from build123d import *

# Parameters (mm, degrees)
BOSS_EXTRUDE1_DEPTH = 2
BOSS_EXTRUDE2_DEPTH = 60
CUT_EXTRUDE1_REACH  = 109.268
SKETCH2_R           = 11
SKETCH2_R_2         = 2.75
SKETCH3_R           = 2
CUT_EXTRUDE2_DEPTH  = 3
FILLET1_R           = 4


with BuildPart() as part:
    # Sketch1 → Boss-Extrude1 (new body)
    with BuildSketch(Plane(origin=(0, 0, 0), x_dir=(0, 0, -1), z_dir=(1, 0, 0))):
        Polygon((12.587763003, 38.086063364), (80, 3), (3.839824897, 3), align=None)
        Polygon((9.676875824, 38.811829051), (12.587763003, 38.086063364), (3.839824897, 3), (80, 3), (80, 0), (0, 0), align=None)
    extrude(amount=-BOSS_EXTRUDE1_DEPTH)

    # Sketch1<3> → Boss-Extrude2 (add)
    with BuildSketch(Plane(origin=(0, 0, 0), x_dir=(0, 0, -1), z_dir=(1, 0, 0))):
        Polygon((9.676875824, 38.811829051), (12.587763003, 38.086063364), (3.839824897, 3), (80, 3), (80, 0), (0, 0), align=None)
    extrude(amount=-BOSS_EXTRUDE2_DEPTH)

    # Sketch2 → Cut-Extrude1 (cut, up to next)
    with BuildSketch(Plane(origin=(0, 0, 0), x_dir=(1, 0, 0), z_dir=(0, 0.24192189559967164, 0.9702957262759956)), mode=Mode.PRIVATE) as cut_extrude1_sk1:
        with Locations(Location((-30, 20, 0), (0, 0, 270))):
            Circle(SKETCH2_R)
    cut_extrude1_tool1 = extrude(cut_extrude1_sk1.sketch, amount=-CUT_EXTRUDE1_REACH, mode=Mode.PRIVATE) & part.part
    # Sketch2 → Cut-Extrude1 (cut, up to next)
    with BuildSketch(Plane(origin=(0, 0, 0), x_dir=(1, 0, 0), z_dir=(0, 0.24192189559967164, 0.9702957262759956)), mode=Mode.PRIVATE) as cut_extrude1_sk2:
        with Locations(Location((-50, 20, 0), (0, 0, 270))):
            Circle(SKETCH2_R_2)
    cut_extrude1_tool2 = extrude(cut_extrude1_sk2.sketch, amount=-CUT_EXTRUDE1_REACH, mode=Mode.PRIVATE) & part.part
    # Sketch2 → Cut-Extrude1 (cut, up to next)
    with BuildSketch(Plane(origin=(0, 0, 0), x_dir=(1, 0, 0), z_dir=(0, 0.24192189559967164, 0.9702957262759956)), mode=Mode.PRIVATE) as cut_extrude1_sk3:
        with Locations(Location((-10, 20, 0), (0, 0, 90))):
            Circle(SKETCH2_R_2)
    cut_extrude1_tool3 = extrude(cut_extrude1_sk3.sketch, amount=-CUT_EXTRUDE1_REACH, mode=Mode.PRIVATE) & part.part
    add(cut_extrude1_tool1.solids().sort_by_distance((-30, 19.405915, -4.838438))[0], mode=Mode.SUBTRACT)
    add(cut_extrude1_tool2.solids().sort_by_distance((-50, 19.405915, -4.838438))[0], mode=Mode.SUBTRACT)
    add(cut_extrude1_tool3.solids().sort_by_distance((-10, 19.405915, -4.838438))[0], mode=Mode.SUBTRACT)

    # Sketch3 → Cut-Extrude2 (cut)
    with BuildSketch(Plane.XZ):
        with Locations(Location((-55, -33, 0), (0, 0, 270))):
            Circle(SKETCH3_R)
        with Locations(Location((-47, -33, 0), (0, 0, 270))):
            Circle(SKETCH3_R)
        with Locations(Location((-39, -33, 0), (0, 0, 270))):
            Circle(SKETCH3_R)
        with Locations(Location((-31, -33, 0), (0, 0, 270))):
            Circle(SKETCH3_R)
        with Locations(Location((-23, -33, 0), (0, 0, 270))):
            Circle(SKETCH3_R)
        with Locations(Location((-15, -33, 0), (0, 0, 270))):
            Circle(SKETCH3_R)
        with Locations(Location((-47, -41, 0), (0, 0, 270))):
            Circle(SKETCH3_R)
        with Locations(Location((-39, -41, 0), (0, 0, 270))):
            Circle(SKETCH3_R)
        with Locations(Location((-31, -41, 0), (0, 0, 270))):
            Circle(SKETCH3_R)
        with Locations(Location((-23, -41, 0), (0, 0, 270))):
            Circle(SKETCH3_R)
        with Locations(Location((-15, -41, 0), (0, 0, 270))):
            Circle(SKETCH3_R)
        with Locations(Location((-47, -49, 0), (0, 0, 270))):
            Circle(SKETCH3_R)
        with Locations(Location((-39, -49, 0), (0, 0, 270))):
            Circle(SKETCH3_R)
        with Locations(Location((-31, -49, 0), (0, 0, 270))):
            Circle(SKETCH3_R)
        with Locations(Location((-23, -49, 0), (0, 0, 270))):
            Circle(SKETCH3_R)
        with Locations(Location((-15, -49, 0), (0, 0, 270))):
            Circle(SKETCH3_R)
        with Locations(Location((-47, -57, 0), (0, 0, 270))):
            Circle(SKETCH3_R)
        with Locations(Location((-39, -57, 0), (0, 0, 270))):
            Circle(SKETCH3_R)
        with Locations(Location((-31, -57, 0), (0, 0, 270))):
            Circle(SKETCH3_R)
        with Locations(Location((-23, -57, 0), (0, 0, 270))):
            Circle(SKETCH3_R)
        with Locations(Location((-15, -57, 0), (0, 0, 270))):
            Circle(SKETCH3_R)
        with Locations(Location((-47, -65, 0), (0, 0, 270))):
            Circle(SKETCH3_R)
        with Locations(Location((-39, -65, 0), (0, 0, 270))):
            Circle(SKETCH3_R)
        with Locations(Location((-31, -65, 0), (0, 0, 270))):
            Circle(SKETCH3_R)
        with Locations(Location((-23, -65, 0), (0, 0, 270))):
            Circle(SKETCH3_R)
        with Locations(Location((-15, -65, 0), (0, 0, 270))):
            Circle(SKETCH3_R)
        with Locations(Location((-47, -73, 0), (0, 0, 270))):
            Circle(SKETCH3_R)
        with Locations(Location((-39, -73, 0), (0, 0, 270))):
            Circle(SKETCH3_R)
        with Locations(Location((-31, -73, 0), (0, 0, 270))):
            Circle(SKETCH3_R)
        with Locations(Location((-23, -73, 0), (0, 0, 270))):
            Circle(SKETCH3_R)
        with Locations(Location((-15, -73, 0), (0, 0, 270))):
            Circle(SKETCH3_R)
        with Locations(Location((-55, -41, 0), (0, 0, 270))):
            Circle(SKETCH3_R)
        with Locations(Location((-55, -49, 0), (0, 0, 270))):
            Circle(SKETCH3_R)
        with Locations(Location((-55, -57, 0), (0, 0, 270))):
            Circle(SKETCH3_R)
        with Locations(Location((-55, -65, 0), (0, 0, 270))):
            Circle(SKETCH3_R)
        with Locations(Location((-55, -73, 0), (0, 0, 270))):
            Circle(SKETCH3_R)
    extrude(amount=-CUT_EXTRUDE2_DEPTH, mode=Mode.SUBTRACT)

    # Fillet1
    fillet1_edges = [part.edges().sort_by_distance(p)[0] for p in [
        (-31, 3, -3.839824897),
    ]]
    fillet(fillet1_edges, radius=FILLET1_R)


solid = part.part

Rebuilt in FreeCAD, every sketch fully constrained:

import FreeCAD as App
import Part
import Sketcher

V = App.Vector
Q = App.Units.Quantity


def edges_at(feature, points):
    """Names of the edges that pass closest to the given points."""
    edges = feature.Shape.Edges
    near = lambda p: min(range(len(edges)), key=lambda i: edges[i].distToShape(Part.Vertex(*p))[0])
    return sorted({f"Edge{near(p) + 1}" for p in points})


def add_polygon(sketch, points):
    """Adds a closed chain of lines whose ends are joined by coincident constraints."""
    first, n = sketch.GeometryCount, len(points)
    for a, b in zip(points, points[1:] + points[:1]):
        sketch.addGeometry(Part.LineSegment(App.Vector(*a, 0), App.Vector(*b, 0)), False)
    for i in range(n):
        sketch.addConstraint(Sketcher.Constraint("Coincident", first + i, 2, first + (i + 1) % n, 1))

doc = App.newDocument("Part")
body = doc.addObject("PartDesign::Body", "Body")

# Sketch on YZ plane
sketch1 = doc.addObject("Sketcher::SketchObject", "Sketch")
body.addObject(sketch1)
sketch1.AttachmentSupport = (doc.YZ_Plane, [""])
sketch1.MapMode = "FlatFace"
add_polygon(sketch1, [(3, -80), (38.1, -12.6), (38.8, -9.7), (0, 0), (0, -80)])  # lines 0-4
sketch1.addConstraint(Sketcher.Constraint("Vertical", 3))
sketch1.addConstraint(Sketcher.Constraint("Horizontal", 4))
sketch1.addConstraint(Sketcher.Constraint("Coincident", 2, 2, -1, 1))
sketch1.addConstraint(Sketcher.Constraint("Perpendicular", 1, 2))
sketch1.addConstraint(Sketcher.Constraint("DistanceX", 4, 1, 4, 2, 3.0))
sketch1.addConstraint(Sketcher.Constraint("DistanceY", 3, 2, 3, 1, 80.0))
sketch1.addConstraint(Sketcher.Constraint("Angle", 1, Q("76 deg")))
sketch1.addConstraint(Sketcher.Constraint("Distance", 1, 3.0))
sketch1.addConstraint(Sketcher.Constraint("Distance", 2, 40.0))
pad1 = doc.addObject("PartDesign::Pad", "Pad")
body.addObject(pad1)
pad1.Profile = sketch1
pad1.Length = 2
pad1.Reversed = True

# Sketch on YZ plane
sketch2 = doc.addObject("Sketcher::SketchObject", "Sketch001")
body.addObject(sketch2)
sketch2.AttachmentSupport = (doc.YZ_Plane, [""])
sketch2.MapMode = "FlatFace"
add_polygon(sketch2, [(38.1, -12.6), (38.8, -9.7), (0, 0), (0, -80), (3, -80), (3, -3.8)])  # lines 0-5
sketch2.addConstraint(Sketcher.Constraint("Vertical", 2))
sketch2.addConstraint(Sketcher.Constraint("Horizontal", 3))
sketch2.addConstraint(Sketcher.Constraint("Vertical", 4))
sketch2.addConstraint(Sketcher.Constraint("Coincident", 1, 2, -1, 1))
sketch2.addConstraint(Sketcher.Constraint("Perpendicular", 0, 1))
sketch2.addConstraint(Sketcher.Constraint("Parallel", 1, 5))
sketch2.addConstraint(Sketcher.Constraint("DistanceX", 3, 1, 3, 2, 3.0))
sketch2.addConstraint(Sketcher.Constraint("DistanceY", 2, 2, 2, 1, 80.0))
sketch2.addConstraint(Sketcher.Constraint("Angle", 0, Q("76 deg")))
sketch2.addConstraint(Sketcher.Constraint("Distance", 0, 3.0))
sketch2.addConstraint(Sketcher.Constraint("Distance", 1, 40.0))
pad2 = doc.addObject("PartDesign::Pad", "Pad001")
body.addObject(pad2)
pad2.Profile = sketch2
pad2.Length = 60
pad2.Reversed = True

# Sketch on an angled plane
sketch3 = doc.addObject("Sketcher::SketchObject", "Sketch002")
body.addObject(sketch3)
sketch3.Placement = App.Placement(V(0, 0, 0), App.Rotation(V(1, 0, 0), V(0, 0.970295726, -0.241921896), V(0, 0.241921896, 0.970295726), "ZXY"))
sketch3.addGeometry(Part.Circle(V(-30, 20, 0), V(0, 0, 1), 11), False)
sketch3.addConstraint(Sketcher.Constraint("Diameter", 0, 22.0))
sketch3.addConstraint(Sketcher.Constraint("DistanceX", 0, 3, -1, 1, 30.0))
sketch3.addConstraint(Sketcher.Constraint("DistanceY", -1, 1, 0, 3, 20.0))
pocket1 = doc.addObject("PartDesign::Pocket", "Pocket")
body.addObject(pocket1)
pocket1.Profile = sketch3
pocket1.Type = "UpToFirst"

# Sketch on an angled plane
sketch4 = doc.addObject("Sketcher::SketchObject", "Sketch003")
body.addObject(sketch4)
sketch4.Placement = App.Placement(V(0, 0, 0), App.Rotation(V(1, 0, 0), V(0, 0.970295726, -0.241921896), V(0, 0.241921896, 0.970295726), "ZXY"))
sketch4.addGeometry(Part.Circle(V(-50, 20, 0), V(0, 0, 1), 2.8), False)
sketch4.addConstraint(Sketcher.Constraint("Diameter", 0, 5.5))
sketch4.addConstraint(Sketcher.Constraint("DistanceX", 0, 3, -1, 1, 50.0))
sketch4.addConstraint(Sketcher.Constraint("DistanceY", -1, 1, 0, 3, 20.0))
pocket2 = doc.addObject("PartDesign::Pocket", "Pocket001")
body.addObject(pocket2)
pocket2.Profile = sketch4
pocket2.Type = "UpToFirst"

# Sketch on an angled plane
sketch5 = doc.addObject("Sketcher::SketchObject", "Sketch004")
body.addObject(sketch5)
sketch5.Placement = App.Placement(V(0, 0, 0), App.Rotation(V(1, 0, 0), V(0, 0.970295726, -0.241921896), V(0, 0.241921896, 0.970295726), "ZXY"))
sketch5.addGeometry(Part.Circle(V(-10, 20, 0), V(0, 0, 1), 2.8), False)
sketch5.addConstraint(Sketcher.Constraint("Diameter", 0, 5.5))
sketch5.addConstraint(Sketcher.Constraint("DistanceX", 0, 3, -1, 1, 10.0))
sketch5.addConstraint(Sketcher.Constraint("DistanceY", -1, 1, 0, 3, 20.0))
pocket3 = doc.addObject("PartDesign::Pocket", "Pocket002")
body.addObject(pocket3)
pocket3.Profile = sketch5
pocket3.Type = "UpToFirst"

# Sketch on XZ plane
sketch6 = doc.addObject("Sketcher::SketchObject", "Sketch005")
body.addObject(sketch6)
sketch6.AttachmentSupport = (doc.XZ_Plane, [""])
sketch6.MapMode = "FlatFace"
sketch6.addGeometry(Part.Circle(V(-55, -33, 0), V(0, 0, 1), 2), False)
sketch6.addGeometry(Part.Circle(V(-47, -33, 0), V(0, 0, 1), 2), False)
sketch6.addGeometry(Part.Circle(V(-39, -33, 0), V(0, 0, 1), 2), False)
sketch6.addGeometry(Part.Circle(V(-31, -33, 0), V(0, 0, 1), 2), False)
sketch6.addGeometry(Part.Circle(V(-23, -33, 0), V(0, 0, 1), 2), False)
sketch6.addGeometry(Part.Circle(V(-15, -33, 0), V(0, 0, 1), 2), False)
sketch6.addGeometry(Part.Circle(V(-47, -41, 0), V(0, 0, 1), 2), False)
sketch6.addGeometry(Part.Circle(V(-39, -41, 0), V(0, 0, 1), 2), False)
sketch6.addGeometry(Part.Circle(V(-31, -41, 0), V(0, 0, 1), 2), False)
sketch6.addGeometry(Part.Circle(V(-23, -41, 0), V(0, 0, 1), 2), False)
sketch6.addGeometry(Part.Circle(V(-15, -41, 0), V(0, 0, 1), 2), False)
sketch6.addGeometry(Part.Circle(V(-47, -49, 0), V(0, 0, 1), 2), False)
sketch6.addGeometry(Part.Circle(V(-39, -49, 0), V(0, 0, 1), 2), False)
sketch6.addGeometry(Part.Circle(V(-31, -49, 0), V(0, 0, 1), 2), False)
sketch6.addGeometry(Part.Circle(V(-23, -49, 0), V(0, 0, 1), 2), False)
sketch6.addGeometry(Part.Circle(V(-15, -49, 0), V(0, 0, 1), 2), False)
sketch6.addGeometry(Part.Circle(V(-47, -57, 0), V(0, 0, 1), 2), False)
sketch6.addGeometry(Part.Circle(V(-39, -57, 0), V(0, 0, 1), 2), False)
sketch6.addGeometry(Part.Circle(V(-31, -57, 0), V(0, 0, 1), 2), False)
sketch6.addGeometry(Part.Circle(V(-23, -57, 0), V(0, 0, 1), 2), False)
sketch6.addGeometry(Part.Circle(V(-15, -57, 0), V(0, 0, 1), 2), False)
sketch6.addGeometry(Part.Circle(V(-47, -65, 0), V(0, 0, 1), 2), False)
sketch6.addGeometry(Part.Circle(V(-39, -65, 0), V(0, 0, 1), 2), False)
sketch6.addGeometry(Part.Circle(V(-31, -65, 0), V(0, 0, 1), 2), False)
sketch6.addGeometry(Part.Circle(V(-23, -65, 0), V(0, 0, 1), 2), False)
sketch6.addGeometry(Part.Circle(V(-15, -65, 0), V(0, 0, 1), 2), False)
sketch6.addGeometry(Part.Circle(V(-47, -73, 0), V(0, 0, 1), 2), False)
sketch6.addGeometry(Part.Circle(V(-39, -73, 0), V(0, 0, 1), 2), False)
sketch6.addGeometry(Part.Circle(V(-31, -73, 0), V(0, 0, 1), 2), False)
sketch6.addGeometry(Part.Circle(V(-23, -73, 0), V(0, 0, 1), 2), False)
sketch6.addGeometry(Part.Circle(V(-15, -73, 0), V(0, 0, 1), 2), False)
sketch6.addGeometry(Part.Circle(V(-55, -41, 0), V(0, 0, 1), 2), False)
sketch6.addGeometry(Part.Circle(V(-55, -49, 0), V(0, 0, 1), 2), False)
sketch6.addGeometry(Part.Circle(V(-55, -57, 0), V(0, 0, 1), 2), False)
sketch6.addGeometry(Part.Circle(V(-55, -65, 0), V(0, 0, 1), 2), False)
sketch6.addGeometry(Part.Circle(V(-55, -73, 0), V(0, 0, 1), 2), False)
sketch6.addConstraint(Sketcher.Constraint("Equal", 0, 1))
sketch6.addConstraint(Sketcher.Constraint("Equal", 1, 2))
sketch6.addConstraint(Sketcher.Constraint("Equal", 2, 3))
sketch6.addConstraint(Sketcher.Constraint("Equal", 3, 4))
sketch6.addConstraint(Sketcher.Constraint("Equal", 4, 5))
sketch6.addConstraint(Sketcher.Constraint("Equal", 5, 6))
sketch6.addConstraint(Sketcher.Constraint("Equal", 6, 7))
sketch6.addConstraint(Sketcher.Constraint("Equal", 7, 8))
sketch6.addConstraint(Sketcher.Constraint("Equal", 8, 9))
sketch6.addConstraint(Sketcher.Constraint("Equal", 9, 10))
sketch6.addConstraint(Sketcher.Constraint("Equal", 10, 11))
sketch6.addConstraint(Sketcher.Constraint("Equal", 11, 12))
sketch6.addConstraint(Sketcher.Constraint("Equal", 12, 13))
sketch6.addConstraint(Sketcher.Constraint("Equal", 13, 14))
sketch6.addConstraint(Sketcher.Constraint("Equal", 14, 15))
sketch6.addConstraint(Sketcher.Constraint("Equal", 15, 16))
sketch6.addConstraint(Sketcher.Constraint("Equal", 16, 17))
sketch6.addConstraint(Sketcher.Constraint("Equal", 17, 18))
sketch6.addConstraint(Sketcher.Constraint("Equal", 18, 19))
sketch6.addConstraint(Sketcher.Constraint("Equal", 19, 20))
sketch6.addConstraint(Sketcher.Constraint("Equal", 20, 21))
sketch6.addConstraint(Sketcher.Constraint("Equal", 21, 22))
sketch6.addConstraint(Sketcher.Constraint("Equal", 22, 23))
sketch6.addConstraint(Sketcher.Constraint("Equal", 23, 24))
sketch6.addConstraint(Sketcher.Constraint("Equal", 24, 25))
sketch6.addConstraint(Sketcher.Constraint("Equal", 25, 26))
sketch6.addConstraint(Sketcher.Constraint("Equal", 26, 27))
sketch6.addConstraint(Sketcher.Constraint("Equal", 27, 28))
sketch6.addConstraint(Sketcher.Constraint("Equal", 28, 29))
sketch6.addConstraint(Sketcher.Constraint("Equal", 29, 30))
sketch6.addConstraint(Sketcher.Constraint("Equal", 30, 31))
sketch6.addConstraint(Sketcher.Constraint("Equal", 31, 32))
sketch6.addConstraint(Sketcher.Constraint("Equal", 32, 33))
sketch6.addConstraint(Sketcher.Constraint("Equal", 33, 34))
sketch6.addConstraint(Sketcher.Constraint("Equal", 34, 35))
sketch6.addConstraint(Sketcher.Constraint("Horizontal", 0, 3, 1, 3))
sketch6.addConstraint(Sketcher.Constraint("Horizontal", 1, 3, 2, 3))
sketch6.addConstraint(Sketcher.Constraint("Horizontal", 2, 3, 3, 3))
sketch6.addConstraint(Sketcher.Constraint("Horizontal", 3, 3, 4, 3))
sketch6.addConstraint(Sketcher.Constraint("Horizontal", 4, 3, 5, 3))
sketch6.addConstraint(Sketcher.Constraint("Horizontal", 6, 3, 7, 3))
sketch6.addConstraint(Sketcher.Constraint("Horizontal", 7, 3, 8, 3))
sketch6.addConstraint(Sketcher.Constraint("Horizontal", 8, 3, 9, 3))
sketch6.addConstraint(Sketcher.Constraint("Horizontal", 9, 3, 10, 3))
sketch6.addConstraint(Sketcher.Constraint("Horizontal", 11, 3, 12, 3))
sketch6.addConstraint(Sketcher.Constraint("Horizontal", 12, 3, 13, 3))
sketch6.addConstraint(Sketcher.Constraint("Horizontal", 13, 3, 14, 3))
sketch6.addConstraint(Sketcher.Constraint("Horizontal", 14, 3, 15, 3))
sketch6.addConstraint(Sketcher.Constraint("Horizontal", 16, 3, 17, 3))
sketch6.addConstraint(Sketcher.Constraint("Horizontal", 17, 3, 18, 3))
sketch6.addConstraint(Sketcher.Constraint("Horizontal", 18, 3, 19, 3))
sketch6.addConstraint(Sketcher.Constraint("Horizontal", 19, 3, 20, 3))
sketch6.addConstraint(Sketcher.Constraint("Horizontal", 21, 3, 22, 3))
sketch6.addConstraint(Sketcher.Constraint("Horizontal", 22, 3, 23, 3))
sketch6.addConstraint(Sketcher.Constraint("Horizontal", 23, 3, 24, 3))
sketch6.addConstraint(Sketcher.Constraint("Horizontal", 24, 3, 25, 3))
sketch6.addConstraint(Sketcher.Constraint("Horizontal", 26, 3, 27, 3))
sketch6.addConstraint(Sketcher.Constraint("Horizontal", 27, 3, 28, 3))
sketch6.addConstraint(Sketcher.Constraint("Horizontal", 28, 3, 29, 3))
sketch6.addConstraint(Sketcher.Constraint("Horizontal", 29, 3, 30, 3))
sketch6.addConstraint(Sketcher.Constraint("Horizontal", 10, 3, 31, 3))
sketch6.addConstraint(Sketcher.Constraint("Horizontal", 15, 3, 32, 3))
sketch6.addConstraint(Sketcher.Constraint("Horizontal", 20, 3, 33, 3))
sketch6.addConstraint(Sketcher.Constraint("Horizontal", 25, 3, 34, 3))
sketch6.addConstraint(Sketcher.Constraint("Horizontal", 30, 3, 35, 3))
sketch6.addConstraint(Sketcher.Constraint("Vertical", 1, 3, 6, 3))
sketch6.addConstraint(Sketcher.Constraint("Vertical", 2, 3, 7, 3))
sketch6.addConstraint(Sketcher.Constraint("Vertical", 3, 3, 8, 3))
sketch6.addConstraint(Sketcher.Constraint("Vertical", 4, 3, 9, 3))
sketch6.addConstraint(Sketcher.Constraint("Vertical", 5, 3, 10, 3))
sketch6.addConstraint(Sketcher.Constraint("Vertical", 6, 3, 11, 3))
sketch6.addConstraint(Sketcher.Constraint("Vertical", 7, 3, 12, 3))
sketch6.addConstraint(Sketcher.Constraint("Vertical", 8, 3, 13, 3))
sketch6.addConstraint(Sketcher.Constraint("Vertical", 9, 3, 14, 3))
sketch6.addConstraint(Sketcher.Constraint("Vertical", 10, 3, 15, 3))
sketch6.addConstraint(Sketcher.Constraint("Vertical", 11, 3, 16, 3))
sketch6.addConstraint(Sketcher.Constraint("Vertical", 12, 3, 17, 3))
sketch6.addConstraint(Sketcher.Constraint("Vertical", 13, 3, 18, 3))
sketch6.addConstraint(Sketcher.Constraint("Vertical", 14, 3, 19, 3))
sketch6.addConstraint(Sketcher.Constraint("Vertical", 15, 3, 20, 3))
sketch6.addConstraint(Sketcher.Constraint("Vertical", 16, 3, 21, 3))
sketch6.addConstraint(Sketcher.Constraint("Vertical", 17, 3, 22, 3))
sketch6.addConstraint(Sketcher.Constraint("Vertical", 18, 3, 23, 3))
sketch6.addConstraint(Sketcher.Constraint("Vertical", 19, 3, 24, 3))
sketch6.addConstraint(Sketcher.Constraint("Vertical", 20, 3, 25, 3))
sketch6.addConstraint(Sketcher.Constraint("Vertical", 21, 3, 26, 3))
sketch6.addConstraint(Sketcher.Constraint("Vertical", 22, 3, 27, 3))
sketch6.addConstraint(Sketcher.Constraint("Vertical", 23, 3, 28, 3))
sketch6.addConstraint(Sketcher.Constraint("Vertical", 24, 3, 29, 3))
sketch6.addConstraint(Sketcher.Constraint("Vertical", 25, 3, 30, 3))
sketch6.addConstraint(Sketcher.Constraint("Vertical", 0, 3, 31, 3))
sketch6.addConstraint(Sketcher.Constraint("Vertical", 31, 3, 32, 3))
sketch6.addConstraint(Sketcher.Constraint("Vertical", 32, 3, 33, 3))
sketch6.addConstraint(Sketcher.Constraint("Vertical", 33, 3, 34, 3))
sketch6.addConstraint(Sketcher.Constraint("Vertical", 34, 3, 35, 3))
sketch6.addConstraint(Sketcher.Constraint("Diameter", 0, 4.0))
sketch6.addConstraint(Sketcher.Constraint("DistanceX", 0, 3, -1, 1, 55.0))
sketch6.addConstraint(Sketcher.Constraint("DistanceY", 0, 3, -1, 1, 33.0))
sketch6.addConstraint(Sketcher.Constraint("DistanceX", 1, 3, -1, 1, 47.0))
sketch6.addConstraint(Sketcher.Constraint("DistanceX", 2, 3, -1, 1, 39.0))
sketch6.addConstraint(Sketcher.Constraint("DistanceX", 3, 3, -1, 1, 31.0))
sketch6.addConstraint(Sketcher.Constraint("DistanceX", 4, 3, -1, 1, 23.0))
sketch6.addConstraint(Sketcher.Constraint("DistanceX", 5, 3, -1, 1, 15.0))
sketch6.addConstraint(Sketcher.Constraint("DistanceY", 6, 3, -1, 1, 41.0))
sketch6.addConstraint(Sketcher.Constraint("DistanceY", 11, 3, -1, 1, 49.0))
sketch6.addConstraint(Sketcher.Constraint("DistanceY", 16, 3, -1, 1, 57.0))
sketch6.addConstraint(Sketcher.Constraint("DistanceY", 21, 3, -1, 1, 65.0))
sketch6.addConstraint(Sketcher.Constraint("DistanceY", 26, 3, -1, 1, 73.0))
pocket4 = doc.addObject("PartDesign::Pocket", "Pocket003")
body.addObject(pocket4)
pocket4.Profile = sketch6
pocket4.Length = 3
doc.recompute()

fillet = doc.addObject("PartDesign::Fillet", "Fillet")
body.addObject(fillet)
fillet.Base = (pocket4, edges_at(pocket4, [(-31, 3, -3.84)]))
fillet.Radius = 4

doc.recompute()
